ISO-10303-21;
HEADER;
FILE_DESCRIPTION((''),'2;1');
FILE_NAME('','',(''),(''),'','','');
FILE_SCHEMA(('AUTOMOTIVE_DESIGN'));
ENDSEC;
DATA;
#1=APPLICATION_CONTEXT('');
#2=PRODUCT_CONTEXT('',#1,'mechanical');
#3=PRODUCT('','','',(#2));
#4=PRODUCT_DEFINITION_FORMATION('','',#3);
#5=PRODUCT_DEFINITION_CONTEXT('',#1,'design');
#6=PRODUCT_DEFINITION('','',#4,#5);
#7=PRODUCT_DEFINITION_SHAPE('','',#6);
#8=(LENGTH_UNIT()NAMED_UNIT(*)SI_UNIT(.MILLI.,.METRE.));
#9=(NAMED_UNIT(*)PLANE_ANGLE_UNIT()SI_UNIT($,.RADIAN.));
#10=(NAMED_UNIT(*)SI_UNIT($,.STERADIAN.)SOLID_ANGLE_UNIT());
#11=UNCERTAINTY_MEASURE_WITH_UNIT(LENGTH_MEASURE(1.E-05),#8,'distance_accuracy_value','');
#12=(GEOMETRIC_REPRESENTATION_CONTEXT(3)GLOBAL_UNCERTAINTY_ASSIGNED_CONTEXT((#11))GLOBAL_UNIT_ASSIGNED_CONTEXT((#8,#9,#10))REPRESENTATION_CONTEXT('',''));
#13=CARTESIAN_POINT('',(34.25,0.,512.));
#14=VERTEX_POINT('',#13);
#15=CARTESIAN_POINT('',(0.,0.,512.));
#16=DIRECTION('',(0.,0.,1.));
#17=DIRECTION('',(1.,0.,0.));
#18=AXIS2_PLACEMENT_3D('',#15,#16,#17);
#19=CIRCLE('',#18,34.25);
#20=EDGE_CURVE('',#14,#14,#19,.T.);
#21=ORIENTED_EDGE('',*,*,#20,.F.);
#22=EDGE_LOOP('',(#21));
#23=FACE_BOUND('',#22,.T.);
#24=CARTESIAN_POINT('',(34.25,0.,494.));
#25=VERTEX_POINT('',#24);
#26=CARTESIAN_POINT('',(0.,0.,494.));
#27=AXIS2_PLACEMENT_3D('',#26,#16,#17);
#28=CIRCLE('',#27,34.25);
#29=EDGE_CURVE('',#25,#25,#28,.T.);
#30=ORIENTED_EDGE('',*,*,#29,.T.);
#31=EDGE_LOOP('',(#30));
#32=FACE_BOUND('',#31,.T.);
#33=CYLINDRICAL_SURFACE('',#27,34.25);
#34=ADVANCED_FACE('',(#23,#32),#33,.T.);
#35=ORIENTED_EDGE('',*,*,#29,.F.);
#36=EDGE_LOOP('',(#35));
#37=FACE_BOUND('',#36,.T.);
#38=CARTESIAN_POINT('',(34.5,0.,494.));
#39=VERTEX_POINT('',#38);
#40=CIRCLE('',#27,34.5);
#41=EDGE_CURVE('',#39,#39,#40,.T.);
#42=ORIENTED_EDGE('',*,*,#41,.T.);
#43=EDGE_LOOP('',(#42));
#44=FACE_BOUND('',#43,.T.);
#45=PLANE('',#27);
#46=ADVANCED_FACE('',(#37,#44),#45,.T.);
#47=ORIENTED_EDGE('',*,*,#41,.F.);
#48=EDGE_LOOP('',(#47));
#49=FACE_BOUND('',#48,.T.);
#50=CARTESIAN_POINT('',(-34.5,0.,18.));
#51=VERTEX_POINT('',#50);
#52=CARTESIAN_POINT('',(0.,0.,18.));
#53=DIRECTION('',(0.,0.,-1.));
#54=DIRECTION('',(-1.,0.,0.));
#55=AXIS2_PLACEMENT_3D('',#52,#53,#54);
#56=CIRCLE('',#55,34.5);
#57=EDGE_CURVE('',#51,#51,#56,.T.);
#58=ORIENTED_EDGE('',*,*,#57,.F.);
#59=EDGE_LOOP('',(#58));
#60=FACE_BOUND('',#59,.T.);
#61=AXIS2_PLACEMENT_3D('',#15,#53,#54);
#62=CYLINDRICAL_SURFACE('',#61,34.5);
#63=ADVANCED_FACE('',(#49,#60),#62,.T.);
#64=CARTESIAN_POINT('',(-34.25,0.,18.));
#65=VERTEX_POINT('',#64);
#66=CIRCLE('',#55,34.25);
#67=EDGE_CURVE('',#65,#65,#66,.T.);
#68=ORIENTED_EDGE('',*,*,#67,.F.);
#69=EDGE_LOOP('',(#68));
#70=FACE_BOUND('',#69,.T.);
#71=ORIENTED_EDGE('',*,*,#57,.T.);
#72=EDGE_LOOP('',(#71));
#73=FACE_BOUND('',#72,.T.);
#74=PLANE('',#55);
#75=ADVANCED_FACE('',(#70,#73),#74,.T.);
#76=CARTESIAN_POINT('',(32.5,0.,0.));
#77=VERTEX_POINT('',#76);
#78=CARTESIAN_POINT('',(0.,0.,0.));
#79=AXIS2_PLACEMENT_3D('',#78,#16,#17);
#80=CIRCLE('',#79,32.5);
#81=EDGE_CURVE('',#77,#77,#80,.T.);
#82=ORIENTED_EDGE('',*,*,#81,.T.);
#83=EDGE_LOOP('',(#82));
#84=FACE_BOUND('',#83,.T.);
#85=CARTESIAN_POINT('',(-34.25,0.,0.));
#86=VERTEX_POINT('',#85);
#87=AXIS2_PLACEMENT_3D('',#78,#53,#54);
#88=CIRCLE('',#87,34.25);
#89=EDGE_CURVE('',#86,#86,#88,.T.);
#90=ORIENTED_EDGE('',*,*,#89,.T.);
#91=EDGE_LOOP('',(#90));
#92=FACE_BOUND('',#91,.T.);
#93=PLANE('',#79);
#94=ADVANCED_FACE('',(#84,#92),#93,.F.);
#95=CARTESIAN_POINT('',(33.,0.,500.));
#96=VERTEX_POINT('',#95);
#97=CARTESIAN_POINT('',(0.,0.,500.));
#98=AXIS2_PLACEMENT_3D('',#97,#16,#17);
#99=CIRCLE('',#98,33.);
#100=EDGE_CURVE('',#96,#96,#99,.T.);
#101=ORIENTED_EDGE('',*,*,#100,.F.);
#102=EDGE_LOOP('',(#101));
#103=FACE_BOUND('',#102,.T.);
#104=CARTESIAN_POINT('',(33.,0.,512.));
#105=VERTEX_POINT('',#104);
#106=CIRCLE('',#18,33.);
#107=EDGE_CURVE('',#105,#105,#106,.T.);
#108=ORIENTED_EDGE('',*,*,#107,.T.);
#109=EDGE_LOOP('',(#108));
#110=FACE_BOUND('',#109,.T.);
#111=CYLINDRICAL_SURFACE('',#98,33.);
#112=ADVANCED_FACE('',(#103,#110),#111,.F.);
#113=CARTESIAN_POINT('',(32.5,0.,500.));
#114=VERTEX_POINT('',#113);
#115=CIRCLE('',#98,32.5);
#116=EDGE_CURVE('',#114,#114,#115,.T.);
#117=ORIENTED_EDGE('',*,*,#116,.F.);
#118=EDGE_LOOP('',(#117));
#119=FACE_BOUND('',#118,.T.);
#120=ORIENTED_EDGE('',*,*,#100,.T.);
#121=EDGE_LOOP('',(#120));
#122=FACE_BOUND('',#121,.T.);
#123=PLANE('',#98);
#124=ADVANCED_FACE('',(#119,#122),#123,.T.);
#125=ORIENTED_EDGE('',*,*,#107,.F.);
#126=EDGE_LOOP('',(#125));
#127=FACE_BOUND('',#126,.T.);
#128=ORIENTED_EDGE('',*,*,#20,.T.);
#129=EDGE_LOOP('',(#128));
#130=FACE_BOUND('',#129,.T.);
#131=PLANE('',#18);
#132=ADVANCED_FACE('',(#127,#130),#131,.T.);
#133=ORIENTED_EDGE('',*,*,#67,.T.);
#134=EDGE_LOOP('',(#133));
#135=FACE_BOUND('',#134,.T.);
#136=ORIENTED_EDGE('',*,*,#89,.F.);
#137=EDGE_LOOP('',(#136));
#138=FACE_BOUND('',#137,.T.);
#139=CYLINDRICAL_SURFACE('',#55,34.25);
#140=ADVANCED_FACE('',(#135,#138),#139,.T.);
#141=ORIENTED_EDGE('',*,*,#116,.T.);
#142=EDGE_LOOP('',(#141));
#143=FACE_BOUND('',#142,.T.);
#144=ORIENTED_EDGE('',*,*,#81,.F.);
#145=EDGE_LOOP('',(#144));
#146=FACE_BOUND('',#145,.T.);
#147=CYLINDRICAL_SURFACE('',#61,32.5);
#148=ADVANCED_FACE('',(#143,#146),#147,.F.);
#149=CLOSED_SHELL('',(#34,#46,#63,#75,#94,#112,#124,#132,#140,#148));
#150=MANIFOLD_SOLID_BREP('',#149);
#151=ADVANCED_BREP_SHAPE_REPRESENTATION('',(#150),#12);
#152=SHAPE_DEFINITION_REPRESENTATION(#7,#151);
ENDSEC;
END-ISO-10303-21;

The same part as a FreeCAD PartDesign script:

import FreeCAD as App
import Part
import Sketcher
Q = App.Units.Quantity

doc = App.newDocument("Part")
body = doc.addObject("PartDesign::Body", "Body")

# Sketch on XY plane
sketch1 = doc.addObject("Sketcher::SketchObject", "Sketch")
body.addObject(sketch1)
sketch1.AttachmentSupport = (doc.XY_Plane, [""])
sketch1.MapMode = "FlatFace"
sketch1.addGeometry([
    Part.Circle(App.Vector(0, 0, 0), App.Vector(0, 0, 1), 34),
    Part.Circle(App.Vector(0, 0, 0), App.Vector(0, 0, 1), 32),
], False)
sketch1.addConstraint([
    Sketcher.Constraint("Coincident", 0, 3, -1, 1),
    Sketcher.Constraint("Coincident", 1, 3, -1, 1),
    Sketcher.Constraint("Diameter", 0, Q("69 mm")),
    Sketcher.Constraint("Diameter", 1, Q("65 mm")),
])
pad1 = doc.addObject("PartDesign::Pad", "Pad")
body.addObject(pad1)
pad1.Profile = sketch1
pad1.Length = 512

# Sketch on XY plane
sketch2 = doc.addObject("Sketcher::SketchObject", "Sketch001")
body.addObject(sketch2)
sketch2.AttachmentSupport = (doc.XY_Plane, [""])
sketch2.MapMode = "FlatFace"
sketch2.AttachmentOffset = App.Placement(App.Vector(0, 0, 500), App.Rotation())
sketch2.addGeometry([
    Part.Circle(App.Vector(0, 0, 0), App.Vector(0, 0, 1), 33),
    Part.Circle(App.Vector(0, 0, 0), App.Vector(0, 0, 1), 32),
], False)
sketch2.addConstraint([
    Sketcher.Constraint("Coincident", 0, 3, -1, 1),
    Sketcher.Constraint("Coincident", 1, 3, -1, 1),
    Sketcher.Constraint("Diameter", 0, Q("66 mm")),
    Sketcher.Constraint("Diameter", 1, Q("65 mm")),
])
pocket1 = doc.addObject("PartDesign::Pocket", "Pocket")
body.addObject(pocket1)
pocket1.Profile = sketch2
pocket1.Length = 12
pocket1.Reversed = True

# Sketch on XY plane
sketch3 = doc.addObject("Sketcher::SketchObject", "Sketch002")
body.addObject(sketch3)
sketch3.AttachmentSupport = (doc.XY_Plane, [""])
sketch3.MapMode = "FlatFace"
sketch3.AttachmentOffset = App.Placement(App.Vector(0, 0, 494), App.Rotation())
sketch3.addGeometry([
    Part.Circle(App.Vector(0, 0, 0), App.Vector(0, 0, 1), 34),
    Part.Circle(App.Vector(0, 0, 0), App.Vector(0, 0, 1), 34),
], False)
sketch3.addConstraint([
    Sketcher.Constraint("Coincident", 0, 3, -1, 1),
    Sketcher.Constraint("Coincident", 1, 3, -1, 1),
    Sketcher.Constraint("Diameter", 0, Q("69 mm")),
    Sketcher.Constraint("Diameter", 1, Q("68.5 mm")),
])
pocket2 = doc.addObject("PartDesign::Pocket", "Pocket001")
body.addObject(pocket2)
pocket2.Profile = sketch3
pocket2.Length = 18
pocket2.Reversed = True

# Sketch on XY plane
sketch4 = doc.addObject("Sketcher::SketchObject", "Sketch003")
body.addObject(sketch4)
sketch4.AttachmentSupport = (doc.XY_Plane, [""])
sketch4.MapMode = "FlatFace"
sketch4.addGeometry([
    Part.Circle(App.Vector(0, 0, 0), App.Vector(0, 0, 1), 34),
    Part.Circle(App.Vector(0, 0, 0), App.Vector(0, 0, 1), 34),
], False)
sketch4.addConstraint([
    Sketcher.Constraint("Coincident", 0, 3, -1, 1),
    Sketcher.Constraint("Coincident", 1, 3, -1, 1),
    Sketcher.Constraint("Diameter", 0, Q("69 mm")),
    Sketcher.Constraint("Diameter", 1, Q("68.5 mm")),
])
pocket3 = doc.addObject("PartDesign::Pocket", "Pocket002")
body.addObject(pocket3)
pocket3.Profile = sketch4
pocket3.Length = 18
pocket3.Reversed = True

doc.recompute()
